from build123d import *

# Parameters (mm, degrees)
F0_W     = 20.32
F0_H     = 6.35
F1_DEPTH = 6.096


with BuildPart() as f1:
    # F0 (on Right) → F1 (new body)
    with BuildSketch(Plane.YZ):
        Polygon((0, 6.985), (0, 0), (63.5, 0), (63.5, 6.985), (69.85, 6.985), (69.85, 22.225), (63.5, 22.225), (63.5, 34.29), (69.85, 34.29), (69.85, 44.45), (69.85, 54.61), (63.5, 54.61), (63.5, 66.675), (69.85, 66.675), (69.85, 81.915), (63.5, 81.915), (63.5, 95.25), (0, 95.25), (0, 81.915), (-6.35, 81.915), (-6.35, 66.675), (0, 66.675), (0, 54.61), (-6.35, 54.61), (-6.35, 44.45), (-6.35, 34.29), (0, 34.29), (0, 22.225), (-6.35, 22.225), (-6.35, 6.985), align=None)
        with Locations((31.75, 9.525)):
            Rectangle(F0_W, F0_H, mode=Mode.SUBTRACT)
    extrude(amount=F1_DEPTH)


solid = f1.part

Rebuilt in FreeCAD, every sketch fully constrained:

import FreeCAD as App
import Part
import Sketcher

V = App.Vector
Q = App.Units.Quantity

doc = App.newDocument("Part")
body = doc.addObject("PartDesign::Body", "Body")

sketch1 = doc.addObject("Sketcher::SketchObject", "Sketch")
body.addObject(sketch1)
sketch1.AttachmentSupport = (doc.YZ_Plane, [""])
sketch1.MapMode = "FlatFace"
sketch1.addGeometry([
    Part.LineSegment(V(0, 7, 0), V(0, 0, 0)),
    Part.LineSegment(V(0, 0, 0), V(64, 0, 0)),
    Part.LineSegment(V(64, 0, 0), V(64, 7, 0)),
    Part.LineSegment(V(64, 7, 0), V(70, 7, 0)),
    Part.LineSegment(V(70, 7, 0), V(70, 22, 0)),
    Part.LineSegment(V(70, 22, 0), V(64, 22, 0)),
    Part.LineSegment(V(64, 22, 0), V(64, 34, 0)),
    Part.LineSegment(V(64, 34, 0), V(70, 34, 0)),
    Part.LineSegment(V(70, 34, 0), V(70, 55, 0)),
    Part.LineSegment(V(70, 55, 0), V(64, 55, 0)),
    Part.LineSegment(V(64, 55, 0), V(64, 67, 0)),
    Part.LineSegment(V(64, 67, 0), V(70, 67, 0)),
    Part.LineSegment(V(70, 67, 0), V(70, 82, 0)),
    Part.LineSegment(V(70, 82, 0), V(64, 82, 0)),
    Part.LineSegment(V(64, 82, 0), V(64, 95, 0)),
    Part.LineSegment(V(64, 95, 0), V(0, 95, 0)),
    Part.LineSegment(V(0, 95, 0), V(0, 82, 0)),
    Part.LineSegment(V(0, 82, 0), V(-6, 82, 0)),
    Part.LineSegment(V(-6, 82, 0), V(-6, 67, 0)),
    Part.LineSegment(V(-6, 67, 0), V(0, 67, 0)),
    Part.LineSegment(V(0, 67, 0), V(0, 55, 0)),
    Part.LineSegment(V(0, 55, 0), V(-6, 55, 0)),
    Part.LineSegment(V(-6, 55, 0), V(-6, 34, 0)),
    Part.LineSegment(V(-6, 34, 0), V(0, 34, 0)),
    Part.LineSegment(V(0, 34, 0), V(0, 22, 0)),
    Part.LineSegment(V(0, 22, 0), V(-6, 22, 0)),
    Part.LineSegment(V(-6, 22, 0), V(-6, 7, 0)),
    Part.LineSegment(V(-6, 7, 0), V(0, 7, 0)),
    Part.LineSegment(V(42, 6, 0), V(22, 6, 0)),
    Part.LineSegment(V(22, 6, 0), V(22, 13, 0)),
    Part.LineSegment(V(22, 13, 0), V(42, 13, 0)),
    Part.LineSegment(V(42, 13, 0), V(42, 6, 0)),
], False)
sketch1.addConstraint([
    Sketcher.Constraint("Coincident", 0, 2, 1, 1),
    Sketcher.Constraint("Coincident", 1, 2, 2, 1),
    Sketcher.Constraint("Coincident", 2, 2, 3, 1),
    Sketcher.Constraint("Coincident", 3, 2, 4, 1),
    Sketcher.Constraint("Coincident", 4, 2, 5, 1),
    Sketcher.Constraint("Coincident", 5, 2, 6, 1),
    Sketcher.Constraint("Coincident", 6, 2, 7, 1),
    Sketcher.Constraint("Coincident", 7, 2, 8, 1),
    Sketcher.Constraint("Coincident", 8, 2, 9, 1),
    Sketcher.Constraint("Coincident", 9, 2, 10, 1),
    Sketcher.Constraint("Coincident", 10, 2, 11, 1),
    Sketcher.Constraint("Coincident", 11, 2, 12, 1),
    Sketcher.Constraint("Coincident", 12, 2, 13, 1),
    Sketcher.Constraint("Coincident", 13, 2, 14, 1),
    Sketcher.Constraint("Coincident", 14, 2, 15, 1),
    Sketcher.Constraint("Coincident", 15, 2, 16, 1),
    Sketcher.Constraint("Coincident", 16, 2, 17, 1),
    Sketcher.Constraint("Coincident", 17, 2, 18, 1),
    Sketcher.Constraint("Coincident", 18, 2, 19, 1),
    Sketcher.Constraint("Coincident", 19, 2, 20, 1),
    Sketcher.Constraint("Coincident", 20, 2, 21, 1),
    Sketcher.Constraint("Coincident", 21, 2, 22, 1),
    Sketcher.Constraint("Coincident", 22, 2, 23, 1),
    Sketcher.Constraint("Coincident", 23, 2, 24, 1),
    Sketcher.Constraint("Coincident", 24, 2, 25, 1),
    Sketcher.Constraint("Coincident", 25, 2, 26, 1),
    Sketcher.Constraint("Coincident", 26, 2, 27, 1),
    Sketcher.Constraint("Coincident", 27, 2, 0, 1),
    Sketcher.Constraint("Coincident", 28, 2, 29, 1),
    Sketcher.Constraint("Coincident", 29, 2, 30, 1),
    Sketcher.Constraint("Coincident", 30, 2, 31, 1),
    Sketcher.Constraint("Coincident", 31, 2, 28, 1),
    Sketcher.Constraint("Vertical", 0),
    Sketcher.Constraint("Horizontal", 1),
    Sketcher.Constraint("Vertical", 2),
    Sketcher.Constraint("Horizontal", 3),
    Sketcher.Constraint("Vertical", 4),
    Sketcher.Constraint("Horizontal", 5),
    Sketcher.Constraint("Vertical", 6),
    Sketcher.Constraint("Horizontal", 7),
    Sketcher.Constraint("Vertical", 8),
    Sketcher.Constraint("Horizontal", 9),
    Sketcher.Constraint("Vertical", 10),
    Sketcher.Constraint("Horizontal", 11),
    Sketcher.Constraint("Vertical", 12),
    Sketcher.Constraint("Horizontal", 13),
    Sketcher.Constraint("Vertical", 14),
    Sketcher.Constraint("Horizontal", 15),
    Sketcher.Constraint("Vertical", 16),
    Sketcher.Constraint("Horizontal", 17),
    Sketcher.Constraint("Vertical", 18),
    Sketcher.Constraint("Horizontal", 19),
    Sketcher.Constraint("Vertical", 20),
    Sketcher.Constraint("Horizontal", 21),
    Sketcher.Constraint("Vertical", 22),
    Sketcher.Constraint("Horizontal", 23),
    Sketcher.Constraint("Vertical", 24),
    Sketcher.Constraint("Horizontal", 25),
    Sketcher.Constraint("Vertical", 26),
    Sketcher.Constraint("Horizontal", 27),
    Sketcher.Constraint("Horizontal", 28),
    Sketcher.Constraint("Vertical", 29),
    Sketcher.Constraint("Horizontal", 30),
    Sketcher.Constraint("Vertical", 31),
    Sketcher.Constraint("Coincident", 0, 2, -1, 1),
    Sketcher.Constraint("PointOnObject", 15, 2, -2),
    Sketcher.Constraint("PointOnObject", 19, 2, -2),
    Sketcher.Constraint("PointOnObject", 23, 2, -2),
    Sketcher.Constraint("Horizontal", 13, 2, 16, 2),
    Sketcher.Constraint("Horizontal", 11, 2, 18, 2),
    Sketcher.Constraint("Horizontal", 9, 2, 20, 2),
    Sketcher.Constraint("Horizontal", 7, 2, 22, 2),
    Sketcher.Constraint("Horizontal", 5, 2, 24, 2),
    Sketcher.Constraint("Horizontal", 3, 2, 26, 2),
    Sketcher.Constraint("Vertical", 2, 2, 5, 2),
    Sketcher.Constraint("Vertical", 4, 2, 7, 2),
    Sketcher.Constraint("Vertical", 6, 2, 9, 2),
    Sketcher.Constraint("Vertical", 8, 2, 11, 2),
    Sketcher.Constraint("Vertical", 10, 2, 13, 2),
    Sketcher.Constraint("Vertical", 18, 2, 21, 2),
    Sketcher.Constraint("Vertical", 22, 2, 25, 2),
    Sketcher.Constraint("Equal", 13, 17),
    Sketcher.Constraint("Equal", 30, 8),
    Sketcher.Constraint("Equal", 6, 10),
    Sketcher.Constraint("Equal", 4, 12),
    Sketcher.Constraint("Equal", 27, 29),
    Sketcher.Constraint("DistanceX", 1, 1, 1, 2, Q("2.5 in")),
    Sketcher.Constraint("DistanceX", 28, 2, 28, 1, Q("0.8 in")),
    Sketcher.Constraint("DistanceY", 4, 1, 4, 2, Q("0.6 in")),
    Sketcher.Constraint("DistanceX", 3, 1, 3, 2, Q("0.25 in")),
    Sketcher.Constraint("DistanceY", -1, 1, 29, 2, Q("0.5 in")),
    Sketcher.Constraint("DistanceY", 9, 2, 14, 2, Q("1.6 in")),
    Sketcher.Constraint("DistanceX", 26, 2, 28, 2, Q("1.1 in")),
    Sketcher.Constraint("DistanceY", 0, 2, 0, 1, Q("0.275 in")),
    Sketcher.Constraint("DistanceY", 6, 1, 6, 2, Q("0.475 in")),
])
pad1 = doc.addObject("PartDesign::Pad", "Pad")
body.addObject(pad1)
pad1.Profile = sketch1
pad1.Length = Q("0.24 in")

doc.recompute()
